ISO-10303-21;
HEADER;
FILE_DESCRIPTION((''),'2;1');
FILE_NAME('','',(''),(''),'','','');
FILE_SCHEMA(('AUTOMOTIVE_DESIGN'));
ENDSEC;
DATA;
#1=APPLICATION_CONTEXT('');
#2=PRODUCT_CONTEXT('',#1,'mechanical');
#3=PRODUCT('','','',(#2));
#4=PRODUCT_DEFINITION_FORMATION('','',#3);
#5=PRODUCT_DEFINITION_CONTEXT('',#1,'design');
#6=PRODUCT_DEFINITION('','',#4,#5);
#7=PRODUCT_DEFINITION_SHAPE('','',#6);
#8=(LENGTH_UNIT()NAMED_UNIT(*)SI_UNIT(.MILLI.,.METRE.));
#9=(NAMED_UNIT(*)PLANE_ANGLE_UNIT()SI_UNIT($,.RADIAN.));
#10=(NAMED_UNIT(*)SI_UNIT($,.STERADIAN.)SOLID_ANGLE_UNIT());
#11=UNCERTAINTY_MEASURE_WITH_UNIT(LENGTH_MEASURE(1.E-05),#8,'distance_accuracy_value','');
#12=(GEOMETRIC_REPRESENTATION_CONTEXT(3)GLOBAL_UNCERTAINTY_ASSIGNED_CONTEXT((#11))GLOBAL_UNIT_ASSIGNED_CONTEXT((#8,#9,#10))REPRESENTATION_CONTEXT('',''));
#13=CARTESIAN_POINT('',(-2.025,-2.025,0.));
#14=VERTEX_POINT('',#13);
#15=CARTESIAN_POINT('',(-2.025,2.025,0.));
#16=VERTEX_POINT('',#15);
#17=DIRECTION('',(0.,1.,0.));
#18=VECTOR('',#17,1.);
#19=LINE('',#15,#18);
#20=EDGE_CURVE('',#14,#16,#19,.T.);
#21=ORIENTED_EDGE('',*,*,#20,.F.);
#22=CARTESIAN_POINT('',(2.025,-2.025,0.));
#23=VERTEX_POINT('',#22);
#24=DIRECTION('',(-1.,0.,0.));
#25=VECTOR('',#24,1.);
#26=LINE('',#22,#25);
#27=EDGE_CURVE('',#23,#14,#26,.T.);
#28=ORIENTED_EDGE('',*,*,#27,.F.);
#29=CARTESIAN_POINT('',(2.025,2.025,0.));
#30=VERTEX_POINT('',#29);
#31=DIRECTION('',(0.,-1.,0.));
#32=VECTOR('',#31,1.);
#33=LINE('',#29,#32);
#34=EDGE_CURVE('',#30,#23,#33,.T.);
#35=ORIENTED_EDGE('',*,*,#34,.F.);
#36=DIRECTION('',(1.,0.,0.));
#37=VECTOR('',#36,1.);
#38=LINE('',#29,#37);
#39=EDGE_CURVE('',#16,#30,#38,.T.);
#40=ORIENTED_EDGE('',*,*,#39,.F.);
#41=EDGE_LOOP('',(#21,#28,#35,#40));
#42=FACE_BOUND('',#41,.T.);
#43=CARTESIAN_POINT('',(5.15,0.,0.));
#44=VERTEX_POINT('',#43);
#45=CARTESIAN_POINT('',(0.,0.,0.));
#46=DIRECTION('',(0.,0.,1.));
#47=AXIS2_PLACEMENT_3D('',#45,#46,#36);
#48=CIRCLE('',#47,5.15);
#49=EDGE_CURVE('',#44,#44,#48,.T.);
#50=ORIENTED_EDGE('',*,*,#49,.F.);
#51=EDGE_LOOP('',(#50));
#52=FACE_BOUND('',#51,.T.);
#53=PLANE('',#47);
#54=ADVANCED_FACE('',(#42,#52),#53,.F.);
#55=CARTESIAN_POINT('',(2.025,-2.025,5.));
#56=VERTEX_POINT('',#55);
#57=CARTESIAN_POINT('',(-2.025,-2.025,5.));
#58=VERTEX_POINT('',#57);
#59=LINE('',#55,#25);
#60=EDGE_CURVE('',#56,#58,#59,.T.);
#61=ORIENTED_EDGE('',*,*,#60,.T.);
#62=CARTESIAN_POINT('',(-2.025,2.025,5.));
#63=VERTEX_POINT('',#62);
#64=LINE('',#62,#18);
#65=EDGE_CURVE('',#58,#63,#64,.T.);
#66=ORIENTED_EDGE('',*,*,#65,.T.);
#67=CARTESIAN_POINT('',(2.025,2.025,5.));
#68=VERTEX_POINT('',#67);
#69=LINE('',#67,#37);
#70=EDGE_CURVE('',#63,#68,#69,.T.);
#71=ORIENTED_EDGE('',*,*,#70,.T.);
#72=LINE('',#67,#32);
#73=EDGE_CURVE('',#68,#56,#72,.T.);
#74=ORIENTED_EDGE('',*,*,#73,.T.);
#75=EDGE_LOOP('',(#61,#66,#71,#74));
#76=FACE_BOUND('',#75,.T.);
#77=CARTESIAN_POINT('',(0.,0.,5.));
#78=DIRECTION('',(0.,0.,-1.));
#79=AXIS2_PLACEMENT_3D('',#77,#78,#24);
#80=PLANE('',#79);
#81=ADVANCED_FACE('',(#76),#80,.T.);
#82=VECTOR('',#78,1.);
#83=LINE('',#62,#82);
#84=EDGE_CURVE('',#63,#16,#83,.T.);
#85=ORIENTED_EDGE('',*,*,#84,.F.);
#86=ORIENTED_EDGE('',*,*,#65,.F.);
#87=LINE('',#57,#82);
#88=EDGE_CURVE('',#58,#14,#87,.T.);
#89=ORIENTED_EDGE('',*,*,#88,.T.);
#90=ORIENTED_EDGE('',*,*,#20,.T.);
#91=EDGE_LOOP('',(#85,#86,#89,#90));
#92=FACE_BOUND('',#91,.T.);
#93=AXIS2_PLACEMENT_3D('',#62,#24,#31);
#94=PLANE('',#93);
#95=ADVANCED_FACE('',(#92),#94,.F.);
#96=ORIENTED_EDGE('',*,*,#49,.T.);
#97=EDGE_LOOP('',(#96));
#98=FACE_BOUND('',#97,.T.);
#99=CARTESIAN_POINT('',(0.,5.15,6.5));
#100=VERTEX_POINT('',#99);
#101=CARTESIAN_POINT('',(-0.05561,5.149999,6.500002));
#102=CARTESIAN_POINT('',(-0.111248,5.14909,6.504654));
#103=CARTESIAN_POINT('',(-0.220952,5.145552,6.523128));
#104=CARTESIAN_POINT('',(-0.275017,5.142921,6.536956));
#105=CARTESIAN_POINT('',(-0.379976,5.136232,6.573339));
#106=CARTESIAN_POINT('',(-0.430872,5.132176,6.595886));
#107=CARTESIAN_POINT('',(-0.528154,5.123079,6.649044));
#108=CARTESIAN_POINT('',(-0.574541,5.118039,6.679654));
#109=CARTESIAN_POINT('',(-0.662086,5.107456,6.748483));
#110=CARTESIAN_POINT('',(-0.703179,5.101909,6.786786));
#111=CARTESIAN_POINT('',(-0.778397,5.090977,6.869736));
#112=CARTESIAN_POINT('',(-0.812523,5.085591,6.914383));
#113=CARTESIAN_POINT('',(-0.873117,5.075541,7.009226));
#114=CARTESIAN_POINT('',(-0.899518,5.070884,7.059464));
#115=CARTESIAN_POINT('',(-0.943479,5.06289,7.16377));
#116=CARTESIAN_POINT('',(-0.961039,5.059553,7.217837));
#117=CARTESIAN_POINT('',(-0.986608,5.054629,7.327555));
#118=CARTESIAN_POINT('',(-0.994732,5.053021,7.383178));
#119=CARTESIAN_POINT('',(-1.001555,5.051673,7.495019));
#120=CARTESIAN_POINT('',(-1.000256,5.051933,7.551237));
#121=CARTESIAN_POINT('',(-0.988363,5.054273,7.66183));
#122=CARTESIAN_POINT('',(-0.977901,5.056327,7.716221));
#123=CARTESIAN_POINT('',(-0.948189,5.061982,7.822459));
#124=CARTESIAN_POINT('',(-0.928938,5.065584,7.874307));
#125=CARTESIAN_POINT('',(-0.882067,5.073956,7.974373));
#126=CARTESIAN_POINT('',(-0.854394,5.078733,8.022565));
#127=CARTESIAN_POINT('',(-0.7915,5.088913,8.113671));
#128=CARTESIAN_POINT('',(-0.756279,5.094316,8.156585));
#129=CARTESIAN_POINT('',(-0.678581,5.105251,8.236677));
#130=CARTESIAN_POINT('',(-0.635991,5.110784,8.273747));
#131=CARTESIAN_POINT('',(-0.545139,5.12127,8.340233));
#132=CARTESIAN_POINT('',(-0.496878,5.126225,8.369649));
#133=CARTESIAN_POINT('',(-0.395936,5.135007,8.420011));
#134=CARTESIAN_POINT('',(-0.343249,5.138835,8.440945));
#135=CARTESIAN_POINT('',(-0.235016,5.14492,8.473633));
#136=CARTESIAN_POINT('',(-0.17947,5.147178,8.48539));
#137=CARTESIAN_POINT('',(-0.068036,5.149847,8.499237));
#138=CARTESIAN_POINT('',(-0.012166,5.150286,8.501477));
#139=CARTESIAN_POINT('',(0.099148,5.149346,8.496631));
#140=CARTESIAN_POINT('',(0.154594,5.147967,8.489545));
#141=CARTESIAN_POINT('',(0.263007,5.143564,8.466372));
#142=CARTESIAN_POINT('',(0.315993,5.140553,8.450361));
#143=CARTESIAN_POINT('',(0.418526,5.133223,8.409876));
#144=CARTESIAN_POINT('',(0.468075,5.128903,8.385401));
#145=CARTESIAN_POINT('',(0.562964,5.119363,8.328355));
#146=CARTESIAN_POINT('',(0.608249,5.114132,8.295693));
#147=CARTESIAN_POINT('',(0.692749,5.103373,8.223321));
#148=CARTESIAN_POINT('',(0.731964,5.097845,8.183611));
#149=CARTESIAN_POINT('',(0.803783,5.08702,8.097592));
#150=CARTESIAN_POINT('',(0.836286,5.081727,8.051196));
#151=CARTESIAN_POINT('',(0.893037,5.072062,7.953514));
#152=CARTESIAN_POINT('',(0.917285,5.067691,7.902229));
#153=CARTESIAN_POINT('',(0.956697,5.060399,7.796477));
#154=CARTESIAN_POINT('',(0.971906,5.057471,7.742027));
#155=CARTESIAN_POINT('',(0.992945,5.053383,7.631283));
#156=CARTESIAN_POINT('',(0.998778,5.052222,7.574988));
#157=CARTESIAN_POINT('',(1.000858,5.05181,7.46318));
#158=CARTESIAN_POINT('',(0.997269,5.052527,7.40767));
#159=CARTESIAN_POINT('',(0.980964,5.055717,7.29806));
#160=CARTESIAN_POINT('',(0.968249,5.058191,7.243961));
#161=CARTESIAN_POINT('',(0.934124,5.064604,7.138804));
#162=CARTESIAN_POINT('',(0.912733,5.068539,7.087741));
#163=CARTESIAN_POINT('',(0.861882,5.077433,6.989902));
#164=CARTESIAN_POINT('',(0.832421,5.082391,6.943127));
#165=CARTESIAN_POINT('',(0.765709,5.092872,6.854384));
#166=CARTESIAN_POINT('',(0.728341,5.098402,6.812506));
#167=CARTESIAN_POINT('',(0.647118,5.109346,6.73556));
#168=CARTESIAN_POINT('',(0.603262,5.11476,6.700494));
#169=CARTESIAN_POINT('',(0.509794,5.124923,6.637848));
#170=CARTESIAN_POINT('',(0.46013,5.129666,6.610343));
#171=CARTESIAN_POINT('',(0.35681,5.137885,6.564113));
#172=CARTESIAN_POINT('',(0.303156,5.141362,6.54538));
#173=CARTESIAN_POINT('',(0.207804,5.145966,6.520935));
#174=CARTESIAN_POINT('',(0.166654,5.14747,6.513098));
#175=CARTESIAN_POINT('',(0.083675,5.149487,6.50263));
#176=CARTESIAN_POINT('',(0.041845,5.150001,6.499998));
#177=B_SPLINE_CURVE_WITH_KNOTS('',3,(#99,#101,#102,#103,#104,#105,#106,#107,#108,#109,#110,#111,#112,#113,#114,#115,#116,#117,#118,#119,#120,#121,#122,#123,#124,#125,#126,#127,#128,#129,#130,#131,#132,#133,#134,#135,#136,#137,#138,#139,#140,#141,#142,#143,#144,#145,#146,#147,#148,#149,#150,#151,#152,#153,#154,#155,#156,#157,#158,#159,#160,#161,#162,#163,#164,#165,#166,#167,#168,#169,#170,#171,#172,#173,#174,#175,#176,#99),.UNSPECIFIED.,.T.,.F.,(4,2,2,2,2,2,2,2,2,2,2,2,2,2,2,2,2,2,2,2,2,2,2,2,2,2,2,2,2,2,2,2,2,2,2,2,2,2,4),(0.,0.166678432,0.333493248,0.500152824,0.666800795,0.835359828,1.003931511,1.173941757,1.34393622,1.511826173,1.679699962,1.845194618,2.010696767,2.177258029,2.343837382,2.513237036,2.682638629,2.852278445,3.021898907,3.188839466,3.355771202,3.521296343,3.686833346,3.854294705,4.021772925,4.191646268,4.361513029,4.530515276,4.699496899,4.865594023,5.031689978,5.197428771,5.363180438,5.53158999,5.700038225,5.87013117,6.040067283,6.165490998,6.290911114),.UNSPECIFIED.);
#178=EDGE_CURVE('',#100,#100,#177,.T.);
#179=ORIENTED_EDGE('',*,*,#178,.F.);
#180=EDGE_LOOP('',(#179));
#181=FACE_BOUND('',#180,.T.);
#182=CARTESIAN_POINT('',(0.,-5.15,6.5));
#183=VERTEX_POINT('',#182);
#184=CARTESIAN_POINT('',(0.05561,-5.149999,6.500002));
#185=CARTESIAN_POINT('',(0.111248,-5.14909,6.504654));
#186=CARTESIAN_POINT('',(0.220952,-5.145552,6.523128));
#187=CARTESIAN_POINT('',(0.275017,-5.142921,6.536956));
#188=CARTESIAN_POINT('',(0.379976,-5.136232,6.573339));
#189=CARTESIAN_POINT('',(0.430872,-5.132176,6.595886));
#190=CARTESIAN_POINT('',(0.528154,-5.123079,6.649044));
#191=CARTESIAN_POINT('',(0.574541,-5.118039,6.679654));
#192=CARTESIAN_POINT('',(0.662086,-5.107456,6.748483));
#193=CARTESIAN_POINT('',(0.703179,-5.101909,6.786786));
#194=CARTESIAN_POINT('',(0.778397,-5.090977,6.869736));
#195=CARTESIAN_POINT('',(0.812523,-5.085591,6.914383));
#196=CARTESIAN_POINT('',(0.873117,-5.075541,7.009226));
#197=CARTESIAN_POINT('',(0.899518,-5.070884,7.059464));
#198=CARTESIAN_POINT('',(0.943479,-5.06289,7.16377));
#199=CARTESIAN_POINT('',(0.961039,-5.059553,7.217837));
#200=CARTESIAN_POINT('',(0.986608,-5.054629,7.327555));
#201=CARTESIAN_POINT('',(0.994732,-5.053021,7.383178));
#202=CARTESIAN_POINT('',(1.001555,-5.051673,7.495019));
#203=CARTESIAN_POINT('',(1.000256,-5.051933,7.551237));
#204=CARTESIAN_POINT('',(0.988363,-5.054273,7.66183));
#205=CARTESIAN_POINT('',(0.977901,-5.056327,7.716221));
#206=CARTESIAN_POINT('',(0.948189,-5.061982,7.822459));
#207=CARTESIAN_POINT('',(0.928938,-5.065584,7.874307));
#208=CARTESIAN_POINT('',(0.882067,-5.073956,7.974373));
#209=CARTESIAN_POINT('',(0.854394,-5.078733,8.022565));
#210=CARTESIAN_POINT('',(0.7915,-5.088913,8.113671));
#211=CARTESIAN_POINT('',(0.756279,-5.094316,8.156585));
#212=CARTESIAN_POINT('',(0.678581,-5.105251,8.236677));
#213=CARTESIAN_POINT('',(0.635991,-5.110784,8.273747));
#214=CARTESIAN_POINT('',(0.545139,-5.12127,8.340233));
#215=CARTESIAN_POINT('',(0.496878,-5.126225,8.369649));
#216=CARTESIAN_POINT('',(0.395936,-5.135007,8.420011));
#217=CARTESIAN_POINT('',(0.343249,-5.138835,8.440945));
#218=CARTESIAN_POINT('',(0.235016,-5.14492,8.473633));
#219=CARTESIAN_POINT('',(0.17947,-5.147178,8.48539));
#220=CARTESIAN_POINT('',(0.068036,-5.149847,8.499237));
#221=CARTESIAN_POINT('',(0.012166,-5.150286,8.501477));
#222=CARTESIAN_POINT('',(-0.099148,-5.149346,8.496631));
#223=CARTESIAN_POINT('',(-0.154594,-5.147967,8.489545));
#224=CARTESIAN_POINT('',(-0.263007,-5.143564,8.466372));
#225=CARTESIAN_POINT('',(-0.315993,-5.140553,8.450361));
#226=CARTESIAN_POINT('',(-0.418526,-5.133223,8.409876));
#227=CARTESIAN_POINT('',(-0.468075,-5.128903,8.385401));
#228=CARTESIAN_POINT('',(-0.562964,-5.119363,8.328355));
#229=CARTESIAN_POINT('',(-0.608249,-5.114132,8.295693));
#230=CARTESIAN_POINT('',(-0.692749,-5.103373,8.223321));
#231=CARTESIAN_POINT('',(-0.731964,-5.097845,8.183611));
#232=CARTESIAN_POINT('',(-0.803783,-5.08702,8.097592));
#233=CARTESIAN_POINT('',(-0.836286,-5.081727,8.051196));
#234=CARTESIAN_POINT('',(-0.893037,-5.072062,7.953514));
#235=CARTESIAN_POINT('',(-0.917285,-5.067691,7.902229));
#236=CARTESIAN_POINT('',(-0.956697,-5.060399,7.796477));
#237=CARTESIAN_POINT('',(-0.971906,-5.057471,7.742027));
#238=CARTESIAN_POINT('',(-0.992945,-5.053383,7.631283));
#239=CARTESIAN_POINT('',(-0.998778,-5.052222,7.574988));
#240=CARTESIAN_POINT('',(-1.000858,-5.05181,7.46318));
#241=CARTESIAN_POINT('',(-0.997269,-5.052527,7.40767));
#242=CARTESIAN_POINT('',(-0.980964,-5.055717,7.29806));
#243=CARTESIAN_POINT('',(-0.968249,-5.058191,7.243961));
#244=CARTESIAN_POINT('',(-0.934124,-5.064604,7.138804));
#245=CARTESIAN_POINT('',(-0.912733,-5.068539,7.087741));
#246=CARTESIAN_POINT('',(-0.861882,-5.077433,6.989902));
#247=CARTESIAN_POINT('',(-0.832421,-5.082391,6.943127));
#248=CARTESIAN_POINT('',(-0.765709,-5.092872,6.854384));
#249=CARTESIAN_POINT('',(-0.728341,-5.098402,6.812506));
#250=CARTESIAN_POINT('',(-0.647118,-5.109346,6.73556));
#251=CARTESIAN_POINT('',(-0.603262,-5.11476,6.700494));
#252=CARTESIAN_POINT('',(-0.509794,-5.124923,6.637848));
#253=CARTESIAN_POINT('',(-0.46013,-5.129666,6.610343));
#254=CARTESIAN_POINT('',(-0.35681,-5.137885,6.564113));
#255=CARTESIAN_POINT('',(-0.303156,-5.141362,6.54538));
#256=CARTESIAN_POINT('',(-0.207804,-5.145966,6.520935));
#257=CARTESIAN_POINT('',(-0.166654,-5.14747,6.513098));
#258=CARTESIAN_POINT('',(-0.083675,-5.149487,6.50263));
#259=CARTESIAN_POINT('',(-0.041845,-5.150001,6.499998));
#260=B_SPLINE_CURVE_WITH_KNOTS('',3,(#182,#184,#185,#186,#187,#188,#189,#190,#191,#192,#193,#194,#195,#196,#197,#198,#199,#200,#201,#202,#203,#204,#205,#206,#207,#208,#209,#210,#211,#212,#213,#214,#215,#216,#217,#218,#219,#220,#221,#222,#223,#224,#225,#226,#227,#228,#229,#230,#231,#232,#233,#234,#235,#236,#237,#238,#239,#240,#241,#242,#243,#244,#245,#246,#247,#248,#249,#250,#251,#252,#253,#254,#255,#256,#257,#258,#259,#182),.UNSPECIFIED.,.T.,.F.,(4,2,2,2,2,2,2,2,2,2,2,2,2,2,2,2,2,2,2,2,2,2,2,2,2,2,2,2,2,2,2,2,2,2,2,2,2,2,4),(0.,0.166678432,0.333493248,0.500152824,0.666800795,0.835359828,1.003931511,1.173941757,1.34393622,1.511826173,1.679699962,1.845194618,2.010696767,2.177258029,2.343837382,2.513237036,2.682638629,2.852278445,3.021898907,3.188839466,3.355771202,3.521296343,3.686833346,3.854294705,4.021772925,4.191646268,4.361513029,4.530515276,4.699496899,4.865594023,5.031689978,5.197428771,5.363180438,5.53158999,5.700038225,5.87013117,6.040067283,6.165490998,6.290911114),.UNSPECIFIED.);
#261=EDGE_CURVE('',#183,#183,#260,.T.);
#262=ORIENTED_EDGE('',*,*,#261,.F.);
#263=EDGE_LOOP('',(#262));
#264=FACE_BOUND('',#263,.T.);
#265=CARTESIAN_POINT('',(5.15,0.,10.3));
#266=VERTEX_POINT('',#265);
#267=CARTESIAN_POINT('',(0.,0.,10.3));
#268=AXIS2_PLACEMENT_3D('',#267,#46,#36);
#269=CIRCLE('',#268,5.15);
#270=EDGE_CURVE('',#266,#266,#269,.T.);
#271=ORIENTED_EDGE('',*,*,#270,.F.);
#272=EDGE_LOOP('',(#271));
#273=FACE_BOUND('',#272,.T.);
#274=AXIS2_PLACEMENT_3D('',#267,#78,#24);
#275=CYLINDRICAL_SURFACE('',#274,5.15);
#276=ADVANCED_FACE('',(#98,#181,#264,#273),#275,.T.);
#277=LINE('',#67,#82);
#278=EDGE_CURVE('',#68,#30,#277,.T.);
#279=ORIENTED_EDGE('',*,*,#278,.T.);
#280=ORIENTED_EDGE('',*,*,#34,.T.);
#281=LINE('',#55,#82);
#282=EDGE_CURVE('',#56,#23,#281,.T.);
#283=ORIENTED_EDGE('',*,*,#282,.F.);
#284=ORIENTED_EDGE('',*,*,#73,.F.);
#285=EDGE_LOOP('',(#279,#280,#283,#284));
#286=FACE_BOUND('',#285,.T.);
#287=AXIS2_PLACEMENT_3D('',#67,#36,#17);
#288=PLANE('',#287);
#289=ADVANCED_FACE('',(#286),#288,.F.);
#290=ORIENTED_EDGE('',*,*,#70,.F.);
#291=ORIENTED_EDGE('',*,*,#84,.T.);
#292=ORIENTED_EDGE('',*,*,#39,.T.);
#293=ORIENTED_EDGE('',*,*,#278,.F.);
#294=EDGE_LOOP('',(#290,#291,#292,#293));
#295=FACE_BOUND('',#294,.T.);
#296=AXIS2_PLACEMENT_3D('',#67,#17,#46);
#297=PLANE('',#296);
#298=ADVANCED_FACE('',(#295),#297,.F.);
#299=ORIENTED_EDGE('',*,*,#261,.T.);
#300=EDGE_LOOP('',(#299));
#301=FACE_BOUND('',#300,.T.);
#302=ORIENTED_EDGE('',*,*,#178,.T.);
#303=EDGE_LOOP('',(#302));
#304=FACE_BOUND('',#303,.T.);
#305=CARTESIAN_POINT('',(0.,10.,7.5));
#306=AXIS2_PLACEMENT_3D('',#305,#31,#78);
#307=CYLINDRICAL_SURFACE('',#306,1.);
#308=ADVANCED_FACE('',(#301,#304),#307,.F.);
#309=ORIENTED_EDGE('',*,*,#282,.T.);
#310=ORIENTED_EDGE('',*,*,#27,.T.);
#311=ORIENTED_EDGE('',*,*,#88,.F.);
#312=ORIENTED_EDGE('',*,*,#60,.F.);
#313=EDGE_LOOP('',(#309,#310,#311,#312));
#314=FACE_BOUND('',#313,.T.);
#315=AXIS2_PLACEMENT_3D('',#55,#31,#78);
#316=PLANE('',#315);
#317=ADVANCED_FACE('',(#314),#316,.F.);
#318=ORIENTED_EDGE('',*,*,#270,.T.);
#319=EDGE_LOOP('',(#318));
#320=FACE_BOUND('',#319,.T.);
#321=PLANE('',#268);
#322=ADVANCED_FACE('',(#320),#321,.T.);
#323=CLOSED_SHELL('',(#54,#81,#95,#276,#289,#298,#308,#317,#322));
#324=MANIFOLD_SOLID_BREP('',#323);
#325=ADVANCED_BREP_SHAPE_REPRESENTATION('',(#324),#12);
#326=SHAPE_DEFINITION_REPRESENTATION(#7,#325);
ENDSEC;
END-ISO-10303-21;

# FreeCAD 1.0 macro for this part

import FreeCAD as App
import Part
import Sketcher

V = App.Vector

doc = App.newDocument("Part")
body = doc.addObject("PartDesign::Body", "Body")

sketch1 = doc.addObject("Sketcher::SketchObject", "Sketch")
body.addObject(sketch1)
sketch1.AttachmentSupport = (doc.XY_Plane, [""])
sketch1.MapMode = "FlatFace"
sketch1.addGeometry(Part.Circle(V(0, 0, 0), V(0, 0, 1), 5), False)
sketch1.addConstraint([
    Sketcher.Constraint("Coincident", 0, 3, -1, 1),
    Sketcher.Constraint("Diameter", 0, 10.3),
])
pad1 = doc.addObject("PartDesign::Pad", "Pad")
body.addObject(pad1)
pad1.Profile = sketch1
pad1.Length = 10.3

sketch2 = doc.addObject("Sketcher::SketchObject", "Sketch001")
body.addObject(sketch2)
sketch2.AttachmentSupport = (doc.XZ_Plane, [""])
sketch2.MapMode = "FlatFace"
sketch2.addGeometry(Part.Circle(V(0, 7.5, 0), V(0, 0, 1), 1), False)
sketch2.addConstraint([
    Sketcher.Constraint("PointOnObject", 0, 3, -2),
    Sketcher.Constraint("Diameter", 0, 2.0),
    Sketcher.Constraint("DistanceY", -1, 1, 0, 3, 7.5),
])
pocket1 = doc.addObject("PartDesign::Pocket", "Pocket")
body.addObject(pocket1)
pocket1.Profile = sketch2
pocket1.Type = "ThroughAll"
pocket1.Midplane = True

sketch3 = doc.addObject("Sketcher::SketchObject", "Sketch002")
body.addObject(sketch3)
sketch3.AttachmentSupport = (doc.XY_Plane, [""])
sketch3.MapMode = "FlatFace"
sketch3.addGeometry([
    Part.LineSegment(V(2, 2, 0), V(2, -2, 0)),
    Part.LineSegment(V(2, -2, 0), V(-2, -2, 0)),
    Part.LineSegment(V(-2, -2, 0), V(-2, 2, 0)),
    Part.LineSegment(V(-2, 2, 0), V(2, 2, 0)),
], False)
sketch3.addConstraint([
    Sketcher.Constraint("Coincident", 0, 2, 1, 1),
    Sketcher.Constraint("Coincident", 1, 2, 2, 1),
    Sketcher.Constraint("Coincident", 2, 2, 3, 1),
    Sketcher.Constraint("Coincident", 3, 2, 0, 1),
    Sketcher.Constraint("Vertical", 0),
    Sketcher.Constraint("Horizontal", 1),
    Sketcher.Constraint("Vertical", 2),
    Sketcher.Constraint("Horizontal", 3),
    Sketcher.Constraint("Symmetric", 0, 2, 2, 2, -1, 1),
    Sketcher.Constraint("Equal", 3, 0),
    Sketcher.Constraint("DistanceX", 1, 2, 1, 1, 4.05),
])
pocket2 = doc.addObject("PartDesign::Pocket", "Pocket001")
body.addObject(pocket2)
pocket2.Profile = sketch3
pocket2.Length = 5
pocket2.Reversed = True

doc.recompute()
